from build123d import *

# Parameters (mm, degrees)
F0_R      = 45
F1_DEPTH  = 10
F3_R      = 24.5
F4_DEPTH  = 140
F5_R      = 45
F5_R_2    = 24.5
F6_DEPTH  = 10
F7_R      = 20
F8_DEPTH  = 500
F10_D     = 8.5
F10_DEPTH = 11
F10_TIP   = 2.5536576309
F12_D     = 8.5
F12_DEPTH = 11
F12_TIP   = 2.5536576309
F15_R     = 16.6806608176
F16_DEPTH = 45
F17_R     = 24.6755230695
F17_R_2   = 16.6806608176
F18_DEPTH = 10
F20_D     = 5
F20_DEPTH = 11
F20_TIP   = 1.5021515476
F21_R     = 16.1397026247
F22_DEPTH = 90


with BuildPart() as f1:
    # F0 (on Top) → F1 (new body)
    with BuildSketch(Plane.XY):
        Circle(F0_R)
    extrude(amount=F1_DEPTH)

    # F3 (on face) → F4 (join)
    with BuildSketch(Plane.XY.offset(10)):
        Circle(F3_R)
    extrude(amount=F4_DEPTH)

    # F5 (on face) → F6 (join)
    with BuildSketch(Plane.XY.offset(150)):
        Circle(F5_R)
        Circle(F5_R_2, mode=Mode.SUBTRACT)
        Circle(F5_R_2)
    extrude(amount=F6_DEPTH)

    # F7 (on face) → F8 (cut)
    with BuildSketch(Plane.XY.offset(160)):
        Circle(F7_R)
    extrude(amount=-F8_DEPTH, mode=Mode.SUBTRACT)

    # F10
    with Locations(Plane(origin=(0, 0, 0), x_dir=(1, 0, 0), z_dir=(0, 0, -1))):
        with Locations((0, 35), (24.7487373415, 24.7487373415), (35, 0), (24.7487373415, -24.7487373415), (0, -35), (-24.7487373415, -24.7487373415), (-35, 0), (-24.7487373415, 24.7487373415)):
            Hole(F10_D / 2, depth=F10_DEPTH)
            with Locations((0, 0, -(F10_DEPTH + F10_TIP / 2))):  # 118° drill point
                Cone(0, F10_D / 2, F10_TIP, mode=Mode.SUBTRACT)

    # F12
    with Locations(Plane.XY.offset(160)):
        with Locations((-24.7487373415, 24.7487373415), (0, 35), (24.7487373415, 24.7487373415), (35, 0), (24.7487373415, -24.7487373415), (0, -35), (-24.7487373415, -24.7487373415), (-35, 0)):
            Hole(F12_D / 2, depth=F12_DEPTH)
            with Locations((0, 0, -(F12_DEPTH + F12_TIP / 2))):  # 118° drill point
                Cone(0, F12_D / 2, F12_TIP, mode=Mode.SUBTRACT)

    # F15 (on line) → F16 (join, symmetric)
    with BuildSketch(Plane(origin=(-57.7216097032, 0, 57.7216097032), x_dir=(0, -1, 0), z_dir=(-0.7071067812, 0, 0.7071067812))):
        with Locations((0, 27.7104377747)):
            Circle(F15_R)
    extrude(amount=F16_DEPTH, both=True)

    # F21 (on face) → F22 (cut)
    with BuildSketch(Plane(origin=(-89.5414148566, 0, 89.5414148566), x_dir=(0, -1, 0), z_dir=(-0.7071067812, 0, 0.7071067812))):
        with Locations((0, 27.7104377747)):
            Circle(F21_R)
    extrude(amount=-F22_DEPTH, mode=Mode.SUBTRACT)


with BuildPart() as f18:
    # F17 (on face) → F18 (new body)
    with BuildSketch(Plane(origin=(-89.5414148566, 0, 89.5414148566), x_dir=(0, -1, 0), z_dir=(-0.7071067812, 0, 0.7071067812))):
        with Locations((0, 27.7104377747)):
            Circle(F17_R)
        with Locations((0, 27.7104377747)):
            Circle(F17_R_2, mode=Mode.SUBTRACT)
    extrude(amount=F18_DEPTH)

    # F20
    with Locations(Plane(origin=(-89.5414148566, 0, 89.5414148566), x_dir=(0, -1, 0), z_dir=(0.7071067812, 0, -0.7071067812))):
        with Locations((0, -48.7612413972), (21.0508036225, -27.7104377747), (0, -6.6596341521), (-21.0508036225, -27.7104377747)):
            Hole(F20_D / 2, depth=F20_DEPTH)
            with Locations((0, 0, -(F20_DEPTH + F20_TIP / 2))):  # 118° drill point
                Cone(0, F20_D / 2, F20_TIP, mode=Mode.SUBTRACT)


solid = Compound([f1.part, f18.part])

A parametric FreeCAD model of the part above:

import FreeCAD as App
import Part
import Sketcher

V = App.Vector

doc = App.newDocument("Part")
body = doc.addObject("PartDesign::Body", "Body")

# Sketch on XY plane
sketch1 = body.newObject("Sketcher::SketchObject", "Sketch")
sketch1.AttachmentSupport = (doc.getObject("XY_Plane"), [""])
sketch1.MapMode = "FlatFace"
sketch1.addGeometry(Part.Circle(V(0, 0, 0), V(0, 0, 1), 45), False)
sketch1.addConstraint([
    Sketcher.Constraint("Coincident", 0, 3, -1, 1),
    Sketcher.Constraint("Diameter", 0, 90.0),
])
pad1 = body.newObject("PartDesign::Pad", "Pad")
pad1.Profile = sketch1
pad1.Length = 10

# Sketch on XY plane
sketch2 = body.newObject("Sketcher::SketchObject", "Sketch001")
sketch2.AttachmentSupport = (doc.getObject("XY_Plane"), [""])
sketch2.MapMode = "FlatFace"
sketch2.AttachmentOffset = App.Placement(V(0, 0, 10), App.Rotation())
sketch2.addGeometry(Part.Circle(V(0, 0, 0), V(0, 0, 1), 24), False)
sketch2.addConstraint([
    Sketcher.Constraint("Coincident", 0, 3, -1, 1),
    Sketcher.Constraint("Diameter", 0, 49.0),
])
pad2 = body.newObject("PartDesign::Pad", "Pad001")
pad2.Profile = sketch2
pad2.Length = 140

# Sketch on XY plane
sketch3 = body.newObject("Sketcher::SketchObject", "Sketch002")
sketch3.AttachmentSupport = (doc.getObject("XY_Plane"), [""])
sketch3.MapMode = "FlatFace"
sketch3.AttachmentOffset = App.Placement(V(0, 0, 150), App.Rotation())
sketch3.addGeometry(Part.Circle(V(0, 0, 0), V(0, 0, 1), 45), False)
sketch3.addConstraint([
    Sketcher.Constraint("Coincident", 0, 3, -1, 1),
    Sketcher.Constraint("Diameter", 0, 90.0),
])
pad3 = body.newObject("PartDesign::Pad", "Pad002")
pad3.Profile = sketch3
pad3.Length = 10

# Sketch on XY plane
sketch4 = body.newObject("Sketcher::SketchObject", "Sketch003")
sketch4.AttachmentSupport = (doc.getObject("XY_Plane"), [""])
sketch4.MapMode = "FlatFace"
sketch4.AttachmentOffset = App.Placement(V(0, 0, 160), App.Rotation())
sketch4.addGeometry(Part.Circle(V(0, 0, 0), V(0, 0, 1), 20), False)
sketch4.addConstraint([
    Sketcher.Constraint("Coincident", 0, 3, -1, 1),
    Sketcher.Constraint("Diameter", 0, 40.0),
])
pocket1 = body.newObject("PartDesign::Pocket", "Pocket")
pocket1.Profile = sketch4
pocket1.Length = 500

# Sketch on XY plane
sketch5 = body.newObject("Sketcher::SketchObject", "Sketch004")
sketch5.AttachmentSupport = (doc.getObject("XY_Plane"), [""])
sketch5.MapMode = "FlatFace"
sketch5.addGeometry([
    Part.Circle(V(0, -35, 0), V(0, 0, 1), 4.2),  # 0
    Part.Circle(V(24.7, -24.7, 0), V(0, 0, 1), 4.2),  # 1
    Part.Circle(V(35, 0, 0), V(0, 0, 1), 4.2),  # 2
    Part.Circle(V(24.7, 24.7, 0), V(0, 0, 1), 4.2),  # 3
    Part.Circle(V(0, 35, 0), V(0, 0, 1), 4.2),  # 4
    Part.Circle(V(-24.7, 24.7, 0), V(0, 0, 1), 4.2),  # 5
    Part.Circle(V(-35, 0, 0), V(0, 0, 1), 4.2),  # 6
    Part.Circle(V(-24.7, -24.7, 0), V(0, 0, 1), 4.2),  # 7
], False)
sketch5.addConstraint([
    Sketcher.Constraint("Equal", 0, 1),
    Sketcher.Constraint("Equal", 1, 2),
    Sketcher.Constraint("Equal", 2, 3),
    Sketcher.Constraint("Equal", 3, 4),
    Sketcher.Constraint("Equal", 4, 5),
    Sketcher.Constraint("Equal", 5, 6),
    Sketcher.Constraint("Equal", 6, 7),
    Sketcher.Constraint("Symmetric", 0, 3, 4, 3, -1, 1),
    Sketcher.Constraint("Symmetric", 1, 3, 5, 3, -1, 1),
    Sketcher.Constraint("Symmetric", 2, 3, 6, 3, -1, 1),
    Sketcher.Constraint("Symmetric", 3, 3, 7, 3, -1, 1),
    Sketcher.Constraint("Symmetric", 3, 3, 5, 3, -2),
    Sketcher.Constraint("PointOnObject", 0, 3, -2),
    Sketcher.Constraint("PointOnObject", 2, 3, -1),
    Sketcher.Constraint("Diameter", 0, 8.5),
    Sketcher.Constraint("DistanceY", 0, 3, -1, 1, 35.0),
    Sketcher.Constraint("DistanceX", -1, 1, 2, 3, 35.0),
    Sketcher.Constraint("DistanceX", -1, 1, 1, 3, 24.748737),
    Sketcher.Constraint("DistanceY", 1, 3, -1, 1, 24.748737),
])
doc.recompute()
hole = body.newObject("PartDesign::Hole", "Hole")
hole.Profile = sketch5
hole.ThreadType = "None"
hole.Diameter = 8.5
hole.DepthType = "Dimension"
hole.Depth = 11
hole.DrillPoint = "Angled"
hole.DrillPointAngle = 118
hole.Reversed = True

# Sketch on XY plane
sketch6 = body.newObject("Sketcher::SketchObject", "Sketch005")
sketch6.AttachmentSupport = (doc.getObject("XY_Plane"), [""])
sketch6.MapMode = "FlatFace"
sketch6.AttachmentOffset = App.Placement(V(0, 0, 160), App.Rotation())
sketch6.addGeometry([
    Part.Circle(V(-24.7, 24.7, 0), V(0, 0, 1), 4.2),  # 0
    Part.Circle(V(0, 35, 0), V(0, 0, 1), 4.2),  # 1
    Part.Circle(V(24.7, 24.7, 0), V(0, 0, 1), 4.2),  # 2
    Part.Circle(V(35, 0, 0), V(0, 0, 1), 4.2),  # 3
    Part.Circle(V(24.7, -24.7, 0), V(0, 0, 1), 4.2),  # 4
    Part.Circle(V(0, -35, 0), V(0, 0, 1), 4.2),  # 5
    Part.Circle(V(-24.7, -24.7, 0), V(0, 0, 1), 4.2),  # 6
    Part.Circle(V(-35, 0, 0), V(0, 0, 1), 4.2),  # 7
], False)
sketch6.addConstraint([
    Sketcher.Constraint("Equal", 0, 1),
    Sketcher.Constraint("Equal", 1, 2),
    Sketcher.Constraint("Equal", 2, 3),
    Sketcher.Constraint("Equal", 3, 4),
    Sketcher.Constraint("Equal", 4, 5),
    Sketcher.Constraint("Equal", 5, 6),
    Sketcher.Constraint("Equal", 6, 7),
    Sketcher.Constraint("Symmetric", 0, 3, 4, 3, -1, 1),
    Sketcher.Constraint("Symmetric", 1, 3, 5, 3, -1, 1),
    Sketcher.Constraint("Symmetric", 2, 3, 6, 3, -1, 1),
    Sketcher.Constraint("Symmetric", 3, 3, 7, 3, -1, 1),
    Sketcher.Constraint("Symmetric", 0, 3, 2, 3, -2),
    Sketcher.Constraint("PointOnObject", 1, 3, -2),
    Sketcher.Constraint("PointOnObject", 3, 3, -1),
    Sketcher.Constraint("Diameter", 0, 8.5),
    Sketcher.Constraint("DistanceY", -1, 1, 1, 3, 35.0),
    Sketcher.Constraint("DistanceX", -1, 1, 3, 3, 35.0),
    Sketcher.Constraint("DistanceX", 0, 3, -1, 1, 24.748737),
    Sketcher.Constraint("DistanceY", -1, 1, 0, 3, 24.748737),
])
doc.recompute()
hole2 = body.newObject("PartDesign::Hole", "Hole001")
hole2.Profile = sketch6
hole2.ThreadType = "None"
hole2.Diameter = 8.5
hole2.DepthType = "Dimension"
hole2.Depth = 11
hole2.DrillPoint = "Angled"
hole2.DrillPointAngle = 118

# Sketch on an angled plane
sketch7 = body.newObject("Sketcher::SketchObject", "Sketch006")
sketch7.Placement = App.Placement(V(-57.72161, 0, 57.72161), App.Rotation(V(0, -1, 0), V(0.707106781, 0, 0.707106781), V(-0.707106781, 0, 0.707106781), "ZXY"))
sketch7.addGeometry(Part.Circle(V(0, 28, 0), V(0, 0, 1), 17), False)
sketch7.addConstraint([
    Sketcher.Constraint("PointOnObject", 0, 3, -2),
    Sketcher.Constraint("Diameter", 0, 33.361322),
    Sketcher.Constraint("DistanceY", -1, 1, 0, 3, 27.710438),
])
pad4 = body.newObject("PartDesign::Pad", "Pad003")
pad4.Profile = sketch7
pad4.Length = 90
pad4.Midplane = True

# Sketch on an angled plane
sketch8 = body.newObject("Sketcher::SketchObject", "Sketch007")
sketch8.Placement = App.Placement(V(-89.541415, 0, 89.541415), App.Rotation(V(0, -1, 0), V(0.707106781, 0, 0.707106781), V(-0.707106781, 0, 0.707106781), "ZXY"))
sketch8.addGeometry(Part.Circle(V(0, 28, 0), V(0, 0, 1), 16), False)
sketch8.addConstraint([
    Sketcher.Constraint("PointOnObject", 0, 3, -2),
    Sketcher.Constraint("Diameter", 0, 32.279405),
    Sketcher.Constraint("DistanceY", -1, 1, 0, 3, 27.710438),
])
pocket2 = body.newObject("PartDesign::Pocket", "Pocket001")
pocket2.Profile = sketch8
pocket2.Length = 90
body2 = doc.addObject("PartDesign::Body", "Body001")

# Sketch on an angled plane
sketch9 = body2.newObject("Sketcher::SketchObject", "Sketch008")
sketch9.Placement = App.Placement(V(-89.541415, 0, 89.541415), App.Rotation(V(0, -1, 0), V(0.707106781, 0, 0.707106781), V(-0.707106781, 0, 0.707106781), "ZXY"))
sketch9.addGeometry([
    Part.Circle(V(0, 28, 0), V(0, 0, 1), 25),
    Part.Circle(V(0, 28, 0), V(0, 0, 1), 17),
], False)
sketch9.addConstraint([
    Sketcher.Constraint("Coincident", 1, 3, 0, 3),
    Sketcher.Constraint("PointOnObject", 0, 3, -2),
    Sketcher.Constraint("Diameter", 1, 33.361322),
    Sketcher.Constraint("Diameter", 0, 49.351046),
    Sketcher.Constraint("DistanceY", -1, 1, 0, 3, 27.710438),
])
pad5 = body2.newObject("PartDesign::Pad", "Pad004")
pad5.Profile = sketch9
pad5.Length = 10

# Sketch on an angled plane
sketch10 = body2.newObject("Sketcher::SketchObject", "Sketch009")
sketch10.Placement = App.Placement(V(-89.541415, 0, 89.541415), App.Rotation(V(0, -1, 0), V(-0.707106781, 0, -0.707106781), V(0.707106781, 0, -0.707106781), "ZXY"))
sketch10.addGeometry([
    Part.Circle(V(0, -48.8, 0), V(0, 0, 1), 2.5),
    Part.Circle(V(21.1, -27.7, 0), V(0, 0, 1), 2.5),
    Part.Circle(V(0, -6.7, 0), V(0, 0, 1), 2.5),
    Part.Circle(V(-21.1, -27.7, 0), V(0, 0, 1), 2.5),
], False)
sketch10.addConstraint([
    Sketcher.Constraint("Equal", 0, 1),
    Sketcher.Constraint("Equal", 1, 2),
    Sketcher.Constraint("Equal", 2, 3),
    Sketcher.Constraint("Symmetric", 1, 3, 3, 3, -2),
    Sketcher.Constraint("PointOnObject", 0, 3, -2),
    Sketcher.Constraint("PointOnObject", 2, 3, -2),
    Sketcher.Constraint("Diameter", 0, 5.0),
    Sketcher.Constraint("DistanceY", 0, 3, -1, 1, 48.761241),
    Sketcher.Constraint("DistanceX", -1, 1, 1, 3, 21.050804),
    Sketcher.Constraint("DistanceY", 1, 3, -1, 1, 27.710438),
    Sketcher.Constraint("DistanceY", 2, 3, -1, 1, 6.659634),
])
doc.recompute()
hole3 = body2.newObject("PartDesign::Hole", "Hole002")
hole3.Profile = sketch10
hole3.ThreadType = "None"
hole3.Diameter = 5
hole3.DepthType = "Dimension"
hole3.Depth = 11
hole3.DrillPoint = "Angled"
hole3.DrillPointAngle = 118

doc.recompute()
